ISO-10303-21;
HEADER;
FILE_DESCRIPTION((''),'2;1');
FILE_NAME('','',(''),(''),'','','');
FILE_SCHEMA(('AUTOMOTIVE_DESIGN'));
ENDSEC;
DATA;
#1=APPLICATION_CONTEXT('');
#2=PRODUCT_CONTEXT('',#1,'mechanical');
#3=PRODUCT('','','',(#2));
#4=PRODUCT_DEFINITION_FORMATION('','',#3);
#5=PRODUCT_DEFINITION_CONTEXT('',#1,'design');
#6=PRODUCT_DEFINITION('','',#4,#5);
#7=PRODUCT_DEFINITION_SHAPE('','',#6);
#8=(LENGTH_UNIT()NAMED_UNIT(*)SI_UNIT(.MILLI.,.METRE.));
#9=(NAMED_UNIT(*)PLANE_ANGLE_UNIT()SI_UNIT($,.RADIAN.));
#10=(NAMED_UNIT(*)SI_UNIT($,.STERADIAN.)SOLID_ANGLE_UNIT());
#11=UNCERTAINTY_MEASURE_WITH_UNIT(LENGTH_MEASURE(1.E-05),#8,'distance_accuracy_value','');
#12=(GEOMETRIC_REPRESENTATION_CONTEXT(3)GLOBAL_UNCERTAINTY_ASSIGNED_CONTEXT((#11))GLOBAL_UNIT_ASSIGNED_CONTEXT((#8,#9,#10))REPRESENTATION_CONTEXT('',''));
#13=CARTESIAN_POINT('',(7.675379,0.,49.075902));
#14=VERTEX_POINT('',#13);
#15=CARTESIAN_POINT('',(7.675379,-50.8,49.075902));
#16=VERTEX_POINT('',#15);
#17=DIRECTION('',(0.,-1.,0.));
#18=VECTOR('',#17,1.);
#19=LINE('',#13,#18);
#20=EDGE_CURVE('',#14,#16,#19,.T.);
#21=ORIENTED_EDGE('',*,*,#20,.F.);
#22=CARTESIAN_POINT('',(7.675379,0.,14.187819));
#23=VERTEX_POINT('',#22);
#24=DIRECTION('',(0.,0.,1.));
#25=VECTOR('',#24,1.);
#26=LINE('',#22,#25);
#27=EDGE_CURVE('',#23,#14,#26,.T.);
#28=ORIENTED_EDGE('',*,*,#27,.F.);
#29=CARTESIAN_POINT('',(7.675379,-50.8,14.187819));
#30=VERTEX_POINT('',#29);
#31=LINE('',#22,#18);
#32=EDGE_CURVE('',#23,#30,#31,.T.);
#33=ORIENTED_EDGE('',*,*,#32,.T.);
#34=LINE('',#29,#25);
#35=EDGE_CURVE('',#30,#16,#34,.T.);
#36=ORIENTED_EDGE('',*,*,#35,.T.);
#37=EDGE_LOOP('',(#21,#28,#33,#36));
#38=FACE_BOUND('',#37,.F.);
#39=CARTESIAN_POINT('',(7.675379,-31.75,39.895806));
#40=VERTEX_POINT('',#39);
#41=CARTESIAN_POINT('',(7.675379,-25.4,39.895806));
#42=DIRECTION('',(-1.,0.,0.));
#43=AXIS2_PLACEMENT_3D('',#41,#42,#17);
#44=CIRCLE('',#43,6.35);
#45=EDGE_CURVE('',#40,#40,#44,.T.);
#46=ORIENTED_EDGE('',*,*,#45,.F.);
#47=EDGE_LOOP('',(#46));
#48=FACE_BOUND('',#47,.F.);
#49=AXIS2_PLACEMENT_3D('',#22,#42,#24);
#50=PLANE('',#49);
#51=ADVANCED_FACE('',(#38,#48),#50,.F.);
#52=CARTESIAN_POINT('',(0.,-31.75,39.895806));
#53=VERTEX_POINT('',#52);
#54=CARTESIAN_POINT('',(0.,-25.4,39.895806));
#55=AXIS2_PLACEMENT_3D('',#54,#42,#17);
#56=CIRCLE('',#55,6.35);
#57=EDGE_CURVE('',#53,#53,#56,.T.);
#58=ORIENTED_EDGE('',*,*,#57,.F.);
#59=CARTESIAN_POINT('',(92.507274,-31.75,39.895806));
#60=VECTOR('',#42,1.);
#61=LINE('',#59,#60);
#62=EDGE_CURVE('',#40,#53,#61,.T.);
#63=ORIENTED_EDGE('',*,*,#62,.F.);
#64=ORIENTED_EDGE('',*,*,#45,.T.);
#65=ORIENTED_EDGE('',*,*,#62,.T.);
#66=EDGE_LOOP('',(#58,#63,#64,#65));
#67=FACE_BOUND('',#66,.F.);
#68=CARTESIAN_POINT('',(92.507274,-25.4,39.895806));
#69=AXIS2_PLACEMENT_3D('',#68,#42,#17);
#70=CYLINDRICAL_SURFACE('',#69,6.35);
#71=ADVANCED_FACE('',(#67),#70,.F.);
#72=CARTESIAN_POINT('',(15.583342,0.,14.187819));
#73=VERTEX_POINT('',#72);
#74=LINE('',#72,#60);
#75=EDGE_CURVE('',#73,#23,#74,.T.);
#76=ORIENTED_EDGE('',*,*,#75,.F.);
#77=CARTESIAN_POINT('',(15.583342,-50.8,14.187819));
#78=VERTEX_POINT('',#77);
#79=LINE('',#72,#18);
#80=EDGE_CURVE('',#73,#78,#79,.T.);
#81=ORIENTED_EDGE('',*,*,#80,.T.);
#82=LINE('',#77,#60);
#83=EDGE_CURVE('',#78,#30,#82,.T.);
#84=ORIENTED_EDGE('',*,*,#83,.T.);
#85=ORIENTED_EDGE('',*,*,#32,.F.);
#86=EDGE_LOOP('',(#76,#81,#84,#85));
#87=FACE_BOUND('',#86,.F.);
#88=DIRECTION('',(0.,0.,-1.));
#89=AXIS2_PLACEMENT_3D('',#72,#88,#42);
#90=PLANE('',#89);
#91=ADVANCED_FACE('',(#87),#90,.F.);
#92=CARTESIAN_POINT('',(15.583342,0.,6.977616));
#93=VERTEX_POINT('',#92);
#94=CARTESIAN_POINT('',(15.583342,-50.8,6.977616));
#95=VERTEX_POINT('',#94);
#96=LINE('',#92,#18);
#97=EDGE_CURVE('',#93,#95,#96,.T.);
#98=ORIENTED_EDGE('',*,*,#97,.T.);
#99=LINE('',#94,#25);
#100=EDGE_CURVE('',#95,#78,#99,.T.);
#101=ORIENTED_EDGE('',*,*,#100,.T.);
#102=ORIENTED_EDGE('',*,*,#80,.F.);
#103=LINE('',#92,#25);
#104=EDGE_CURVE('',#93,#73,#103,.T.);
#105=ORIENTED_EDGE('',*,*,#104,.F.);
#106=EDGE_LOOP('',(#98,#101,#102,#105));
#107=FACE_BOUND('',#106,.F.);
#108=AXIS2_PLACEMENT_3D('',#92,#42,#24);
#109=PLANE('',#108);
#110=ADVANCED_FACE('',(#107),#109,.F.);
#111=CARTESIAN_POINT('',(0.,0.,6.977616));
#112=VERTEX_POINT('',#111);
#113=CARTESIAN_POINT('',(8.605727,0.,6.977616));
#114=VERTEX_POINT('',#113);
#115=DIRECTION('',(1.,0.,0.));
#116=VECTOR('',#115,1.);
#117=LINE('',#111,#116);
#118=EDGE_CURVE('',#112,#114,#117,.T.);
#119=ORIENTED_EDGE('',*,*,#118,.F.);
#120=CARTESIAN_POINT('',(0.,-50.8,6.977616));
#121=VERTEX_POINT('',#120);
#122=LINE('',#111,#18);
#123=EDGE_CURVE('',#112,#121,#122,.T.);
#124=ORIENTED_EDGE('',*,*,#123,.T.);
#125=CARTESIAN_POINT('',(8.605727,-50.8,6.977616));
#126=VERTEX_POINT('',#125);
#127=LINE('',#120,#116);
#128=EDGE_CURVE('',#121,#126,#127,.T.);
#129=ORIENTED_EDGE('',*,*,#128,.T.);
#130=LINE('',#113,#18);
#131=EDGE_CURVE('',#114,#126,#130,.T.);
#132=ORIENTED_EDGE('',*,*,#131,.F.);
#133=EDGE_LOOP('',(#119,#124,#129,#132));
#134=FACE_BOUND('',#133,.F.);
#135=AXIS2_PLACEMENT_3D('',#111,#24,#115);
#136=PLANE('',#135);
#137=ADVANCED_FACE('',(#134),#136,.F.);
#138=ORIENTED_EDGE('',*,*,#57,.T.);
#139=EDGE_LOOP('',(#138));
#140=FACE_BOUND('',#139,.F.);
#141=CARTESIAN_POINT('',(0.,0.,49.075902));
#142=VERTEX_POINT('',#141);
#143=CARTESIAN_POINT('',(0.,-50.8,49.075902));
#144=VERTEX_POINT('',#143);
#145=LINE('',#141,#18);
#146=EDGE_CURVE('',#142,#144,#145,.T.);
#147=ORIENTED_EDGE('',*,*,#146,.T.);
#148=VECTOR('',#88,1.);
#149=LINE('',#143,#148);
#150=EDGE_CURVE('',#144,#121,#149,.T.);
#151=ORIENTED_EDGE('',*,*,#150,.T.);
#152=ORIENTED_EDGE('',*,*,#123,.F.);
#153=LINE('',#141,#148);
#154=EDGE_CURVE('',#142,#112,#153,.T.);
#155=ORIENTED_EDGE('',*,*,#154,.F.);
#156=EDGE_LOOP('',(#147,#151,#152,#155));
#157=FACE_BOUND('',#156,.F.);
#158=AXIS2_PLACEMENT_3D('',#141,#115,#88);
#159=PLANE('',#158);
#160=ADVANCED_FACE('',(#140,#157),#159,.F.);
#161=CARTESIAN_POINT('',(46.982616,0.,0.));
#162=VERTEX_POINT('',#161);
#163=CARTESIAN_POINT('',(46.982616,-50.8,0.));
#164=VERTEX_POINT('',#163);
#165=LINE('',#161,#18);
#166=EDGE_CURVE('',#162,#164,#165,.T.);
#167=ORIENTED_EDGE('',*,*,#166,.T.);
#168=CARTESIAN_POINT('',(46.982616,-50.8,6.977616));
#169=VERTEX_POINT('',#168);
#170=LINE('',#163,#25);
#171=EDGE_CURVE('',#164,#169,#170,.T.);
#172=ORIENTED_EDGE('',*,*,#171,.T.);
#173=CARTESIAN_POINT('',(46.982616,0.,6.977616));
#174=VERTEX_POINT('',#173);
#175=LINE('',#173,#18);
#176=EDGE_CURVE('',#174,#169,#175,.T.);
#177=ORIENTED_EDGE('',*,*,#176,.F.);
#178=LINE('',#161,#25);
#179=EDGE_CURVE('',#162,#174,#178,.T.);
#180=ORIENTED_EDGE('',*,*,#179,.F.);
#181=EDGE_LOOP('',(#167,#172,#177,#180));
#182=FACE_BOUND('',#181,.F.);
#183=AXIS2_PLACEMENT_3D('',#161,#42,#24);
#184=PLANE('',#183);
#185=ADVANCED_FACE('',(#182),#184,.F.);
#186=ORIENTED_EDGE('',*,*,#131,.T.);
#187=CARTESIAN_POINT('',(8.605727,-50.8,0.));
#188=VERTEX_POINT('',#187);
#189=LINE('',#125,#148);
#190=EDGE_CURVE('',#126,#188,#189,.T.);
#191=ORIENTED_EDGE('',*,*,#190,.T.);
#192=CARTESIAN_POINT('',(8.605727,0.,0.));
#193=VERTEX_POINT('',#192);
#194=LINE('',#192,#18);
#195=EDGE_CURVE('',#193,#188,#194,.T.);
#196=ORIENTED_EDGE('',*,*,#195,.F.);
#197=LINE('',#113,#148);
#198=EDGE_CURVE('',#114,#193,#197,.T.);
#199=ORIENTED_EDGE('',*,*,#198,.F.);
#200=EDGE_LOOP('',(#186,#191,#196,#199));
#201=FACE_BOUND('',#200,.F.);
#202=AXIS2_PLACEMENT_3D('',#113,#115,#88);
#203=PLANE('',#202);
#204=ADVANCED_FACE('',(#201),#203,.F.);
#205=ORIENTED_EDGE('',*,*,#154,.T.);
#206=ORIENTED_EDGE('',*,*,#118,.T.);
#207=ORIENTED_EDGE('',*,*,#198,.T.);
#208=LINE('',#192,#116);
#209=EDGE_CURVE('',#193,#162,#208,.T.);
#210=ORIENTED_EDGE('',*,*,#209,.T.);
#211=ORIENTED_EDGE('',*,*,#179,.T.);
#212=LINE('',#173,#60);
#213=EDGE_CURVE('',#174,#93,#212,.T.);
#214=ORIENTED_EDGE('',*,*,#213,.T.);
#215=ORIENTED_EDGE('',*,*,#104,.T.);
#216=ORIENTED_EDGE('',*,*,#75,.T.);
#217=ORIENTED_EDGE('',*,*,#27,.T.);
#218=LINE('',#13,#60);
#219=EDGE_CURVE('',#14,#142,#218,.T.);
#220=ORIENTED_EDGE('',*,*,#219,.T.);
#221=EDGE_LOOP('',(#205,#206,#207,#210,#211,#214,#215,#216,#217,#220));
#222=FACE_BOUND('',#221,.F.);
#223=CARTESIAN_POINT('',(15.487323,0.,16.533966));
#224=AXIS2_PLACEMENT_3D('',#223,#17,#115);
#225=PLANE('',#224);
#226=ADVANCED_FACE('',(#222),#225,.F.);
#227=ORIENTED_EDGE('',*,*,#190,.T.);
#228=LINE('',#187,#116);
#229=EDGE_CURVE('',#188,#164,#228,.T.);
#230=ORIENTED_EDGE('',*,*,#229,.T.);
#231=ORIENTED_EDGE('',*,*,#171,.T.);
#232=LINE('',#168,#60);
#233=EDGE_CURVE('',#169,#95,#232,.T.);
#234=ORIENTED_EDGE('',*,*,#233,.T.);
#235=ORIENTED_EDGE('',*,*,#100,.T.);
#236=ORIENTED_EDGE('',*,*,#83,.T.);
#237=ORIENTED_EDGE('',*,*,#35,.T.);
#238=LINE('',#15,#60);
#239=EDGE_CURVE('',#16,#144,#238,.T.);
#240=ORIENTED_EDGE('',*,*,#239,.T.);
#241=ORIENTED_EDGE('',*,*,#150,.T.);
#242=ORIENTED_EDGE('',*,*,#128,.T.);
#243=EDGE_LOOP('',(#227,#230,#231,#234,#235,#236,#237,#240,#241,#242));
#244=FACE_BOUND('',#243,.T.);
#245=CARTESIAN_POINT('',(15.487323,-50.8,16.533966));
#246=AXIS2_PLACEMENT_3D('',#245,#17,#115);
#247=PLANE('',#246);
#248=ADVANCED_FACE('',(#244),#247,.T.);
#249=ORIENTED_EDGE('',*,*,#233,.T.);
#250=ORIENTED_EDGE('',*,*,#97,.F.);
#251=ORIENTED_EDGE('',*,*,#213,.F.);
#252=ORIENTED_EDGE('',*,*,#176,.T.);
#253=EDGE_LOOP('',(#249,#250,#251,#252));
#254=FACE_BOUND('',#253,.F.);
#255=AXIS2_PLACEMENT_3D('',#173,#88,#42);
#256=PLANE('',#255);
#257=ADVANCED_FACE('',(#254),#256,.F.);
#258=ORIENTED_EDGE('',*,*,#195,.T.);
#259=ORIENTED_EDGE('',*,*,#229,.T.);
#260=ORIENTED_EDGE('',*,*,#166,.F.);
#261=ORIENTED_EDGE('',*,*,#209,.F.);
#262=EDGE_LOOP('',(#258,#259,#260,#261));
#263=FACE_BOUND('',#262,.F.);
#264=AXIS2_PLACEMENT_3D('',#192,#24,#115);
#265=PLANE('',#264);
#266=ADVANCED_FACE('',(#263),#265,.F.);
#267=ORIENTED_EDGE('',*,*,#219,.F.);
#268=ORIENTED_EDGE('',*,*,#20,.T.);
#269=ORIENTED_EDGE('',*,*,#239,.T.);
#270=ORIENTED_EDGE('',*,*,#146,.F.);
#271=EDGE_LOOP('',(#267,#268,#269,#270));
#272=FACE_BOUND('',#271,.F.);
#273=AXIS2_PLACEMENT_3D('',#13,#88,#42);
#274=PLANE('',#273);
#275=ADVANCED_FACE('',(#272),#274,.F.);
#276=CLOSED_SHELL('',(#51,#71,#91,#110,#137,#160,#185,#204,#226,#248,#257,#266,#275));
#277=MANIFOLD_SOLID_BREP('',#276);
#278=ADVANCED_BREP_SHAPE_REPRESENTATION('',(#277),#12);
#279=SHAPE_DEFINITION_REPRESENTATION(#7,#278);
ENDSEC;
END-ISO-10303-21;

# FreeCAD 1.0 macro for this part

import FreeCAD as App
import Part
import Sketcher

V = App.Vector
Q = App.Units.Quantity

doc = App.newDocument("Part")
body = doc.addObject("PartDesign::Body", "Body")

# Sketch on XZ plane
sketch1 = body.newObject("Sketcher::SketchObject", "Sketch")
sketch1.AttachmentSupport = (doc.getObject("XZ_Plane"), [""])
sketch1.MapMode = "FlatFace"
sketch1.addGeometry(Part.LineSegment(V(7.675379, 49.075902, 0), V(0, 49.075902, 0)), False)
sketch1.addGeometry(Part.LineSegment(V(0, 49.075902, 0), V(0, 6.977616, 0)), False)
sketch1.addGeometry(Part.LineSegment(V(0, 6.977616, 0), V(8.605727, 6.977616, 0)), False)
sketch1.addGeometry(Part.LineSegment(V(8.605727, 6.977616, 0), V(8.605727, 0, 0)), False)
sketch1.addGeometry(Part.LineSegment(V(8.605727, 0, 0), V(46.982616, 0, 0)), False)
sketch1.addGeometry(Part.LineSegment(V(46.982616, 0, 0), V(46.982616, 6.977616, 0)), False)
sketch1.addGeometry(Part.LineSegment(V(46.982616, 6.977616, 0), V(15.583342, 6.977616, 0)), False)
sketch1.addGeometry(Part.LineSegment(V(15.583342, 6.977616, 0), V(15.583342, 14.187819, 0)), False)
sketch1.addGeometry(Part.LineSegment(V(15.583342, 14.187819, 0), V(7.675379, 14.187819, 0)), False)
sketch1.addGeometry(Part.LineSegment(V(7.675379, 14.187819, 0), V(7.675379, 49.075902, 0)), False)
sketch1.addConstraint(Sketcher.Constraint("Coincident", 0, 2, 1, 1))
sketch1.addConstraint(Sketcher.Constraint("Coincident", 1, 2, 2, 1))
sketch1.addConstraint(Sketcher.Constraint("Coincident", 2, 2, 3, 1))
sketch1.addConstraint(Sketcher.Constraint("Coincident", 3, 2, 4, 1))
sketch1.addConstraint(Sketcher.Constraint("Coincident", 4, 2, 5, 1))
sketch1.addConstraint(Sketcher.Constraint("Coincident", 5, 2, 6, 1))
sketch1.addConstraint(Sketcher.Constraint("Coincident", 6, 2, 7, 1))
sketch1.addConstraint(Sketcher.Constraint("Coincident", 7, 2, 8, 1))
sketch1.addConstraint(Sketcher.Constraint("Coincident", 8, 2, 9, 1))
sketch1.addConstraint(Sketcher.Constraint("Coincident", 9, 2, 0, 1))
sketch1.addConstraint(Sketcher.Constraint("Horizontal", 0))
sketch1.addConstraint(Sketcher.Constraint("Vertical", 1))
sketch1.addConstraint(Sketcher.Constraint("Horizontal", 2))
sketch1.addConstraint(Sketcher.Constraint("Vertical", 3))
sketch1.addConstraint(Sketcher.Constraint("Horizontal", 4))
sketch1.addConstraint(Sketcher.Constraint("Vertical", 5))
sketch1.addConstraint(Sketcher.Constraint("Horizontal", 6))
sketch1.addConstraint(Sketcher.Constraint("Vertical", 7))
sketch1.addConstraint(Sketcher.Constraint("Horizontal", 8))
sketch1.addConstraint(Sketcher.Constraint("Vertical", 9))
sketch1.addConstraint(Sketcher.Constraint("PointOnObject", 0, 2, -2))
sketch1.addConstraint(Sketcher.Constraint("PointOnObject", 3, 2, -1))
sketch1.addConstraint(Sketcher.Constraint("Horizontal", 2, 2, 5, 2))
sketch1.addConstraint(Sketcher.Constraint("DistanceX", 0, 2, 0, 1, 7.675379))
sketch1.addConstraint(Sketcher.Constraint("DistanceX", 4, 1, 4, 2, 38.376889))
sketch1.addConstraint(Sketcher.Constraint("DistanceX", 2, 1, 2, 2, 8.605727))
sketch1.addConstraint(Sketcher.Constraint("DistanceX", 6, 2, 6, 1, 31.399274))
sketch1.addConstraint(Sketcher.Constraint("DistanceY", 1, 2, 1, 1, 42.098286))
sketch1.addConstraint(Sketcher.Constraint("DistanceY", 3, 2, 3, 1, 6.977616))
sketch1.addConstraint(Sketcher.Constraint("DistanceY", 7, 1, 7, 2, 7.210203))
pad1 = body.newObject("PartDesign::Pad", "Pad")
pad1.Profile = sketch1
pad1.Length = Q("2 in")

# Sketch on YZ plane
sketch2 = body.newObject("Sketcher::SketchObject", "Sketch001")
sketch2.AttachmentSupport = (doc.getObject("YZ_Plane"), [""])
sketch2.MapMode = "FlatFace"
sketch2.AttachmentOffset = App.Placement(V(0, 0, 7.675379), App.Rotation())
sketch2.addGeometry(Part.Circle(V(-25.4, 39.895806, 0), V(0, 0, 1), 6.35), False)
sketch2.addConstraint(Sketcher.Constraint("Diameter", 0, Q("0.5 in")))
sketch2.addConstraint(Sketcher.Constraint("DistanceX", 0, 3, -1, 1, Q("1 in")))
sketch2.addConstraint(Sketcher.Constraint("DistanceY", -1, 1, 0, 3, 39.895806))
doc.recompute()
hole = body.newObject("PartDesign::Hole", "Hole")
hole.Profile = sketch2
hole.ThreadType = "None"
hole.Diameter = Q("0.5 in")
hole.DepthType = "ThroughAll"

doc.recompute()
